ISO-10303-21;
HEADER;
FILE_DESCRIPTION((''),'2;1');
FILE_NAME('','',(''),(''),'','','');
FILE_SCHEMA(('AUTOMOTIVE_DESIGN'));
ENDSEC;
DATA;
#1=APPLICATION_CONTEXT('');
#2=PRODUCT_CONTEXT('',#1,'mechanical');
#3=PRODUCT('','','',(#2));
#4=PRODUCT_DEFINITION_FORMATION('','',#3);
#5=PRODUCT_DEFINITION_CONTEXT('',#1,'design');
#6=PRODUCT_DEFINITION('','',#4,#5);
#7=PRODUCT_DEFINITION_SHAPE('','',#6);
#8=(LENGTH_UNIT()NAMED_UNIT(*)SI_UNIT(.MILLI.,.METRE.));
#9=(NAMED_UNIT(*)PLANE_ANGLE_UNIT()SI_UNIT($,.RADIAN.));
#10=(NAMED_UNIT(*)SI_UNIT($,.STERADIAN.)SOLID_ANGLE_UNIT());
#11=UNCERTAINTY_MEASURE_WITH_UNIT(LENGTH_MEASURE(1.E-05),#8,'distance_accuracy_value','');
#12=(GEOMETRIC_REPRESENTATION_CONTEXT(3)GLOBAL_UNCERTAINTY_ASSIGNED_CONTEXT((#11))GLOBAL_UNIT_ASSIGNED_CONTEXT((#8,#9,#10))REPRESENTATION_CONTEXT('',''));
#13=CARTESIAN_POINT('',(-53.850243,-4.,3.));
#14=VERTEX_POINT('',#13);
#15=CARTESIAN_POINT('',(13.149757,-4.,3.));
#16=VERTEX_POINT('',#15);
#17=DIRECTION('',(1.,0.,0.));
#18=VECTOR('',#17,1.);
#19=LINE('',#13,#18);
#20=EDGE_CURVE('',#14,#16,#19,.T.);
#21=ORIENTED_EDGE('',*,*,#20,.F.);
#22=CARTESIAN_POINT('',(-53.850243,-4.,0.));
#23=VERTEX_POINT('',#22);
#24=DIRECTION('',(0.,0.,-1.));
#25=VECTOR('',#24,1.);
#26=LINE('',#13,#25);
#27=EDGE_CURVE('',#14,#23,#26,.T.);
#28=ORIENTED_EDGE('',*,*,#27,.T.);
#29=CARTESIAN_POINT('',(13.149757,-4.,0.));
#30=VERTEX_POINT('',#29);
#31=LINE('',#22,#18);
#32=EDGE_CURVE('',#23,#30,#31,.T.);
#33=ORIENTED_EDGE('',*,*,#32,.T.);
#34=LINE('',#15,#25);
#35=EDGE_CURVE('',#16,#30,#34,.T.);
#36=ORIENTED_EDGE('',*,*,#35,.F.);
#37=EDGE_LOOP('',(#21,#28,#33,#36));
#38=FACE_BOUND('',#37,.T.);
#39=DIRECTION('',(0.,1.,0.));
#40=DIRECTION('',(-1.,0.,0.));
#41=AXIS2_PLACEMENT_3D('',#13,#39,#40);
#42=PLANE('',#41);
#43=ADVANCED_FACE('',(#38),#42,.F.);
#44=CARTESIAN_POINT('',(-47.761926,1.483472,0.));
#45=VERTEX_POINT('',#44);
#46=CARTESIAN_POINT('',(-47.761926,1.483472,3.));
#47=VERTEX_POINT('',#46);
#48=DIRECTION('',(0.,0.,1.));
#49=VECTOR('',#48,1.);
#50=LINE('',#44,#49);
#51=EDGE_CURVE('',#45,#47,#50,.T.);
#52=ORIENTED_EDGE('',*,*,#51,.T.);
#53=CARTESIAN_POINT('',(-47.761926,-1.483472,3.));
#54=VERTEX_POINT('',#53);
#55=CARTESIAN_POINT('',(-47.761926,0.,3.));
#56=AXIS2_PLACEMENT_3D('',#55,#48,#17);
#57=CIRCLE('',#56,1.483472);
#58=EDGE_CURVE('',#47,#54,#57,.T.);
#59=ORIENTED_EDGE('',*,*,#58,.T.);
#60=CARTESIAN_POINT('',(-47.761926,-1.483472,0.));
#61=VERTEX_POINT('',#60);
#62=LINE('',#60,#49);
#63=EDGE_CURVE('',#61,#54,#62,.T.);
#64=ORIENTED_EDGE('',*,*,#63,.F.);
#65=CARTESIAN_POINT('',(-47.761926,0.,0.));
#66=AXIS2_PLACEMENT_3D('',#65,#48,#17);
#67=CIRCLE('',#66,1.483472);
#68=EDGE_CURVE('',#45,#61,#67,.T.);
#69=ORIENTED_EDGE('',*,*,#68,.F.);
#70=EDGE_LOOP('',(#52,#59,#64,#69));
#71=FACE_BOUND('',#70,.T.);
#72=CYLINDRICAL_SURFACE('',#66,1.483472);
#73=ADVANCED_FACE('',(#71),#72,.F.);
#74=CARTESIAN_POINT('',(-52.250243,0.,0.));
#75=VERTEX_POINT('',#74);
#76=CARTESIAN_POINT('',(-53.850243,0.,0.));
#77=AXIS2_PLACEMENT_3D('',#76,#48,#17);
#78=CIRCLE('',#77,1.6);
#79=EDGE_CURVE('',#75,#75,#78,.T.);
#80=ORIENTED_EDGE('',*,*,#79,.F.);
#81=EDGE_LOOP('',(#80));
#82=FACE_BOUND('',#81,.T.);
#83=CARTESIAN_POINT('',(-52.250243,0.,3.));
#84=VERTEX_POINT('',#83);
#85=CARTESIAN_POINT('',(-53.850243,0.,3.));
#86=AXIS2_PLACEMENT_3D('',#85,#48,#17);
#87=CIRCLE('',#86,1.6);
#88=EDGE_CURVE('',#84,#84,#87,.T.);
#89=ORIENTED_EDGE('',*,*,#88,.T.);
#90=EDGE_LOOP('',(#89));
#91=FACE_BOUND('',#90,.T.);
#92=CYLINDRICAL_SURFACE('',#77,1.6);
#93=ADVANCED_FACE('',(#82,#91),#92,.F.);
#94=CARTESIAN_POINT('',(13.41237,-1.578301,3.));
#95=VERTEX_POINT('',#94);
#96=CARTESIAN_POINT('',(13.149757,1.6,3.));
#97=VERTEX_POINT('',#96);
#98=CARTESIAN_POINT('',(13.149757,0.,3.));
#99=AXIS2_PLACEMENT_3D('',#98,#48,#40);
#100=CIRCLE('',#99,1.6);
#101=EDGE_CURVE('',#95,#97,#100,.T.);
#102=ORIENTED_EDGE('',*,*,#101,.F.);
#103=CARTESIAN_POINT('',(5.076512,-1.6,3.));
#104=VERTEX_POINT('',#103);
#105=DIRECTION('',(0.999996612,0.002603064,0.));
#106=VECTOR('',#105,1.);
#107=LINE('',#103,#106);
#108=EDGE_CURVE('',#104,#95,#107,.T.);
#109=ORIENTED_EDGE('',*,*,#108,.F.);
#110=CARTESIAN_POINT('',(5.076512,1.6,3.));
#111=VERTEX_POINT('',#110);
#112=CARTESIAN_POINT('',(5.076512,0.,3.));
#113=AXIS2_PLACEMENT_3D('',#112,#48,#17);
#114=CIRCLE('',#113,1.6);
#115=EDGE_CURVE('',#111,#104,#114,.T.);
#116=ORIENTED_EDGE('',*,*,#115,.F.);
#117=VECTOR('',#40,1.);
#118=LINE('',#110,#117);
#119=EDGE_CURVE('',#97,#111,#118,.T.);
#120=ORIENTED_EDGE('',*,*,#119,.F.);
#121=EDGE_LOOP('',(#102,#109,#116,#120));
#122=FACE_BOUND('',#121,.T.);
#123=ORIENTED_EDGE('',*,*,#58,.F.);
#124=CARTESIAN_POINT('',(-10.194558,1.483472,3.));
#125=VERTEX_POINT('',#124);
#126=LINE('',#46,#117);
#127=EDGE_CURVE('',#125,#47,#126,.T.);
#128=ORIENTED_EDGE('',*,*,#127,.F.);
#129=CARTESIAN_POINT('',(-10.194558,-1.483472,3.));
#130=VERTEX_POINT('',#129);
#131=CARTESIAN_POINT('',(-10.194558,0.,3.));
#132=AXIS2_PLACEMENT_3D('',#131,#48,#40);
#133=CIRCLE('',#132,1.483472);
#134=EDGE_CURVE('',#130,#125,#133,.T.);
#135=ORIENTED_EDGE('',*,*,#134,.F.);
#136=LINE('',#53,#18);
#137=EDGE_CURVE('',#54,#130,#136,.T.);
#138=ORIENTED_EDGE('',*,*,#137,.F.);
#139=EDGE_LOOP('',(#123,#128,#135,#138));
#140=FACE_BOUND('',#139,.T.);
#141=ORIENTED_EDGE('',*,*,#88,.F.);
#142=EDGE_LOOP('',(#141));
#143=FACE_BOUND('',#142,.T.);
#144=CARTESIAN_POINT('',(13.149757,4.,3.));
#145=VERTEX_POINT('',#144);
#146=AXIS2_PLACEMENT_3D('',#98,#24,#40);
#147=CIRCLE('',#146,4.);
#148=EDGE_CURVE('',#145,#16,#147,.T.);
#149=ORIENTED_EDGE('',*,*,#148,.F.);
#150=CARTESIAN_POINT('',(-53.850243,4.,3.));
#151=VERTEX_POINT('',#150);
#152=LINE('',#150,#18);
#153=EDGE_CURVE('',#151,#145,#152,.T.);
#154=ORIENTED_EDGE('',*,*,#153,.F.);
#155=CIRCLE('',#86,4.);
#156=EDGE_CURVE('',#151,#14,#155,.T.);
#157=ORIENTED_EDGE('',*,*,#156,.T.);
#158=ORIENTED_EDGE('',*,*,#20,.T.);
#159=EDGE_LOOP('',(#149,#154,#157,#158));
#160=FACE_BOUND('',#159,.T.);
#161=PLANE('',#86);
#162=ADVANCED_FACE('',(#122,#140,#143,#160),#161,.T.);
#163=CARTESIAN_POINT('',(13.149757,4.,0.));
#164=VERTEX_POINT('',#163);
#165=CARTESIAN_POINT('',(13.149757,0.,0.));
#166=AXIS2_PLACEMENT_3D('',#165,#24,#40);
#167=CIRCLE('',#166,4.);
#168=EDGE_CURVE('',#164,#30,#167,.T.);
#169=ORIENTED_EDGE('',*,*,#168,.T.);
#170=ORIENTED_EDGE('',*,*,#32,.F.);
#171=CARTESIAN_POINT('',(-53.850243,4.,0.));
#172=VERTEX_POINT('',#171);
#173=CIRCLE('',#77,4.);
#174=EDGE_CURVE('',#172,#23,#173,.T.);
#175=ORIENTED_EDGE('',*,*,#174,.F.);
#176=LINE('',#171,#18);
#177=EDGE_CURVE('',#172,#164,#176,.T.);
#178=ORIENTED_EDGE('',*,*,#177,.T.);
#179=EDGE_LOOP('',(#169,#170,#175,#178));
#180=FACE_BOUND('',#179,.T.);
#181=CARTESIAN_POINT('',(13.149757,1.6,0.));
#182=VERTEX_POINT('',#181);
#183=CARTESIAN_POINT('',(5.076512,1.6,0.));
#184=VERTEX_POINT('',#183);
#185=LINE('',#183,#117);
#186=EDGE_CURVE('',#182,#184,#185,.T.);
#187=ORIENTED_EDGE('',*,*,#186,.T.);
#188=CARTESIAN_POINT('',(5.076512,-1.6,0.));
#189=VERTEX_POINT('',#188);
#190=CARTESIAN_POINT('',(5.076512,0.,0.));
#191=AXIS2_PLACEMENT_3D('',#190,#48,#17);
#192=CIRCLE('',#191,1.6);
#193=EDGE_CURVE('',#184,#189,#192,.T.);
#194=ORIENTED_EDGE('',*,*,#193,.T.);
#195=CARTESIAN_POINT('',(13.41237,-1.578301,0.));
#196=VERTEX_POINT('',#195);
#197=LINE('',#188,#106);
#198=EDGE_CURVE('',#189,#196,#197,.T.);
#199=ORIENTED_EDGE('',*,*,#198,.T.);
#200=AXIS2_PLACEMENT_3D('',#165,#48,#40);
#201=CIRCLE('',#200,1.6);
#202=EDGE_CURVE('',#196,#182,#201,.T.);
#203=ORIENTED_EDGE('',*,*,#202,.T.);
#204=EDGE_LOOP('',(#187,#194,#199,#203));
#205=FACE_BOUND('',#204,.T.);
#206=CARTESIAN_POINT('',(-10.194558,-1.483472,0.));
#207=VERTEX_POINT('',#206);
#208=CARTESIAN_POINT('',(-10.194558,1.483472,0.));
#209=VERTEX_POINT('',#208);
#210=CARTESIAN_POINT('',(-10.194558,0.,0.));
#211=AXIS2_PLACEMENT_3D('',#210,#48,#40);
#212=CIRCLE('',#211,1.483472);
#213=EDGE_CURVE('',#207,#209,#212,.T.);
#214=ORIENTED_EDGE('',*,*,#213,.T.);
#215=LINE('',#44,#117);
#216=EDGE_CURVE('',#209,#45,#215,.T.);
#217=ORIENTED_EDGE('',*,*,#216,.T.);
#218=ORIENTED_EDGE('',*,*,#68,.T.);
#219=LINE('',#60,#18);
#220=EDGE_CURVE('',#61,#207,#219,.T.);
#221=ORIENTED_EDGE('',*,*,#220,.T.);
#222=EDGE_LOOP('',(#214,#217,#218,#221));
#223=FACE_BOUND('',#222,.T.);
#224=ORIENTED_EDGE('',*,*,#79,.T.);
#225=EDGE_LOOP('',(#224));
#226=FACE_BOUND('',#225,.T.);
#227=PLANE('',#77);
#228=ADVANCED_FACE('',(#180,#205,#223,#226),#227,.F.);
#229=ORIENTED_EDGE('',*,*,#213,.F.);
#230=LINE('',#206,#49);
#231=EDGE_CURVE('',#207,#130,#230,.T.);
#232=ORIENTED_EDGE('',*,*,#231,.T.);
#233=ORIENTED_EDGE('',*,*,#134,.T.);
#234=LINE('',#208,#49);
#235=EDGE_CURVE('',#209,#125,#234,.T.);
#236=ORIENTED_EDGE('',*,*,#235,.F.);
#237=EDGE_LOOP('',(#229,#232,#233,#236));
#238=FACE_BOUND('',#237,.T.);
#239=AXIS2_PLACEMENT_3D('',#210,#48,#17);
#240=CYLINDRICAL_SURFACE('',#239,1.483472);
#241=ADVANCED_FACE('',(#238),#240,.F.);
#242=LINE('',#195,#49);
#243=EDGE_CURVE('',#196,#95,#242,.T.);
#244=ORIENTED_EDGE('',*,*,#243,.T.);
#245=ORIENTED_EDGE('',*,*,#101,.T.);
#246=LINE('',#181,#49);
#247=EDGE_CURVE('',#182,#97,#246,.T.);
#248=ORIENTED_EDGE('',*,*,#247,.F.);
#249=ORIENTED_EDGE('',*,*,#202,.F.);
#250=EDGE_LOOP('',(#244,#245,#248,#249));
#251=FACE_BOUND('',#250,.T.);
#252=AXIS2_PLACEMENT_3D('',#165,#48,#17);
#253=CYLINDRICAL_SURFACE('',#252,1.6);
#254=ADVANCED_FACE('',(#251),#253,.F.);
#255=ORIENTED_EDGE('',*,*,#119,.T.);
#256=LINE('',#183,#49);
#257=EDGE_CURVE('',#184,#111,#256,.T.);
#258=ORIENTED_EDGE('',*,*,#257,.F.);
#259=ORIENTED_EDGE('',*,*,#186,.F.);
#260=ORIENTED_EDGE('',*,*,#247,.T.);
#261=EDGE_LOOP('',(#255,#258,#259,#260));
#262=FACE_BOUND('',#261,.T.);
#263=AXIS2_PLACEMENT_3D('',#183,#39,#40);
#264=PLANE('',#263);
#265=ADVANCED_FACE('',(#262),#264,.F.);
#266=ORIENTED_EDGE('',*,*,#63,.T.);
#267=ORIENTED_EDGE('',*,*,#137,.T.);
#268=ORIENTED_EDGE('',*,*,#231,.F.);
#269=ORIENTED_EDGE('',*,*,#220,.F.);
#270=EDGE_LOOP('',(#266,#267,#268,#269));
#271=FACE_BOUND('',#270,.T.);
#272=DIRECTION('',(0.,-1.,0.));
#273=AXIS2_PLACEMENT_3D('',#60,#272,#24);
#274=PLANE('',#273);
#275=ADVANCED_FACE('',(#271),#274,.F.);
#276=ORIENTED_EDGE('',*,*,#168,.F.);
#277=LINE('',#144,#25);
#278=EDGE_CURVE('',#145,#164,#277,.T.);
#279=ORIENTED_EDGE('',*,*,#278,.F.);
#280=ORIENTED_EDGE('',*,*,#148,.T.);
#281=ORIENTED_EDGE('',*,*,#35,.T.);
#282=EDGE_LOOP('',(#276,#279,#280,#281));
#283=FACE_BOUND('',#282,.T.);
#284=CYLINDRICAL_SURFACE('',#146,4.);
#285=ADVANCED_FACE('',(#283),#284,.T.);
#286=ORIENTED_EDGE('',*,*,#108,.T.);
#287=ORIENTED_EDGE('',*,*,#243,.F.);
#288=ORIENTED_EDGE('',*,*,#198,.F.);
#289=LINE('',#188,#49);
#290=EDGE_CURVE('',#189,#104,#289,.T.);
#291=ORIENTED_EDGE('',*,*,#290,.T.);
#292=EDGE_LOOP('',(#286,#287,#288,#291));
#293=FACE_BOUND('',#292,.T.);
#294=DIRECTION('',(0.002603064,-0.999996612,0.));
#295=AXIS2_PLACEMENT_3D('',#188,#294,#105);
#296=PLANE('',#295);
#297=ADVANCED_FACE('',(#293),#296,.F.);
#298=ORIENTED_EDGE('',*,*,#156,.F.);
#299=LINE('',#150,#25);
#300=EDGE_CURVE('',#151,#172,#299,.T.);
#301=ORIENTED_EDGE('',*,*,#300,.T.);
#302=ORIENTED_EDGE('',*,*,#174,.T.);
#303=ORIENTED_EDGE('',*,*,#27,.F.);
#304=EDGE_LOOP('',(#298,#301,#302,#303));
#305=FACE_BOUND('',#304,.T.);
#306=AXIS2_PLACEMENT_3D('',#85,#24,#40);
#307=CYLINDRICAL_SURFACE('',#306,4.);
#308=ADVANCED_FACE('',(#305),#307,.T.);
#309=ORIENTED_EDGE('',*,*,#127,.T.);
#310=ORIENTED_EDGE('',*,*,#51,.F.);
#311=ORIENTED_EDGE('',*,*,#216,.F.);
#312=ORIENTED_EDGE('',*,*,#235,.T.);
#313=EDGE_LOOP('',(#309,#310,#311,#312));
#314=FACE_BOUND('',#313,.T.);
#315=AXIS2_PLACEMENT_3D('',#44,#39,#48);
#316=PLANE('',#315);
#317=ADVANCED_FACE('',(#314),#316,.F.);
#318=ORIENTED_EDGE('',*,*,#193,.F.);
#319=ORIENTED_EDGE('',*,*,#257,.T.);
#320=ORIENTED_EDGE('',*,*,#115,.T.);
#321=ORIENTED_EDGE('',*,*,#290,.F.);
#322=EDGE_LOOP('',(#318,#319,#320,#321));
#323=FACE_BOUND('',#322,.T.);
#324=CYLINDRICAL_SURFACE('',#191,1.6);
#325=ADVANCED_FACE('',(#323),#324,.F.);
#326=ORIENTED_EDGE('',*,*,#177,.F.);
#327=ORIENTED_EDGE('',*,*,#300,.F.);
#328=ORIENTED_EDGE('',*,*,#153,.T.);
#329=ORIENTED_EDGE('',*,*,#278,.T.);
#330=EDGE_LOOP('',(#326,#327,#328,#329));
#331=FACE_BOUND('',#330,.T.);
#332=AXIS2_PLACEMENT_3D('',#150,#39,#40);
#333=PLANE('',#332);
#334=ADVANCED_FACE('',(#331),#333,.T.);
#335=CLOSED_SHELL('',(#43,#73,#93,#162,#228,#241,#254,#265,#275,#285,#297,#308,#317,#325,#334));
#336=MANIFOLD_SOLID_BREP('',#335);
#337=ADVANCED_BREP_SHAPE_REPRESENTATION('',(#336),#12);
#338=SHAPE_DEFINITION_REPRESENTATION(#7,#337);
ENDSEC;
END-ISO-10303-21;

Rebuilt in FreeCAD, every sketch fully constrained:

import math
import FreeCAD as App
import Part
import Sketcher
from FreeCAD import Vector

doc = App.newDocument("Part")
body = doc.addObject("PartDesign::Body", "Body")

# Sketch on XY plane
sketch1 = body.newObject("Sketcher::SketchObject", "Sketch")
sketch1.AttachmentSupport = (doc.getObject("XY_Plane"), [""])
sketch1.MapMode = "FlatFace"
sketch1.addGeometry(Part.LineSegment(Vector(13.149757, 4, 0), Vector(-53.850243, 4, 0)), False)
sketch1.addGeometry(Part.ArcOfCircle(Part.Circle(Vector(-53.850243, 0, 0), Vector(0, 0, 1), 4), math.radians(90), math.radians(270)), False)
sketch1.addGeometry(Part.LineSegment(Vector(-53.850243, -4, 0), Vector(13.149757, -4, 0)), False)
sketch1.addGeometry(Part.ArcOfCircle(Part.Circle(Vector(13.149757, 0, 0), Vector(0, 0, 1), 4), math.radians(-90), math.radians(90)), False)
sketch1.addConstraint(Sketcher.Constraint("Tangent", 0, 2, 1, 1))
sketch1.addConstraint(Sketcher.Constraint("Tangent", 1, 2, 2, 1))
sketch1.addConstraint(Sketcher.Constraint("Tangent", 2, 2, 3, 1))
sketch1.addConstraint(Sketcher.Constraint("Tangent", 3, 2, 0, 1))
sketch1.addConstraint(Sketcher.Constraint("Horizontal", 0))
sketch1.addConstraint(Sketcher.Constraint("Horizontal", 2))
sketch1.addConstraint(Sketcher.Constraint("PointOnObject", 1, 3, -1))
sketch1.addConstraint(Sketcher.Constraint("Radius", 1, 4.0))
sketch1.addConstraint(Sketcher.Constraint("DistanceX", 0, 2, 0, 1, 67.0))
sketch1.addConstraint(Sketcher.Constraint("DistanceX", 1, 3, -1, 1, 53.850243))
pad1 = body.newObject("PartDesign::Pad", "Pad")
pad1.Profile = sketch1
pad1.Length = 3

# Sketch on XY plane
sketch2 = body.newObject("Sketcher::SketchObject", "Sketch001")
sketch2.AttachmentSupport = (doc.getObject("XY_Plane"), [""])
sketch2.MapMode = "FlatFace"
sketch2.AttachmentOffset = App.Placement(Vector(0, 0, 3), App.Rotation())
sketch2.addGeometry(Part.Circle(Vector(-53.850243, 0, 0), Vector(0, 0, 1), 1.6), False)
sketch2.addGeometry(Part.LineSegment(Vector(-10.194558, 1.483472, 0), Vector(-47.761926, 1.483472, 0)), False)
sketch2.addGeometry(Part.ArcOfCircle(Part.Circle(Vector(-47.761926, 0, 0), Vector(0, 0, 1), 1.483472), math.radians(90), math.radians(270)), False)
sketch2.addGeometry(Part.LineSegment(Vector(-47.761926, -1.483472, 0), Vector(-10.194558, -1.483472, 0)), False)
sketch2.addGeometry(Part.ArcOfCircle(Part.Circle(Vector(-10.194558, 0, 0), Vector(0, 0, 1), 1.483472), math.radians(-90), math.radians(90)), False)
sketch2.addGeometry(Part.LineSegment(Vector(13.149757, 1.6, 0), Vector(5.076512, 1.6, 0)), False)
sketch2.addGeometry(Part.ArcOfCircle(Part.Circle(Vector(5.076512, 0, 0), Vector(0, 0, 1), 1.6), math.radians(90), math.radians(270)), False)
sketch2.addGeometry(Part.LineSegment(Vector(5.076512, -1.6, 0), Vector(13.41237, -1.578301, 0)), False)
sketch2.addGeometry(Part.ArcOfCircle(Part.Circle(Vector(13.149757, 0, 0), Vector(0, 0, 1), 1.6), math.radians(-80.55313), math.radians(90)), False)
sketch2.addConstraint(Sketcher.Constraint("Tangent", 1, 2, 2, 1))
sketch2.addConstraint(Sketcher.Constraint("Tangent", 2, 2, 3, 1))
sketch2.addConstraint(Sketcher.Constraint("Tangent", 3, 2, 4, 1))
sketch2.addConstraint(Sketcher.Constraint("Tangent", 4, 2, 1, 1))
sketch2.addConstraint(Sketcher.Constraint("Tangent", 5, 2, 6, 1))
sketch2.addConstraint(Sketcher.Constraint("Coincident", 6, 2, 7, 1))
sketch2.addConstraint(Sketcher.Constraint("Coincident", 7, 2, 8, 1))
sketch2.addConstraint(Sketcher.Constraint("Tangent", 8, 2, 5, 1))
sketch2.addConstraint(Sketcher.Constraint("Horizontal", 1))
sketch2.addConstraint(Sketcher.Constraint("Horizontal", 3))
sketch2.addConstraint(Sketcher.Constraint("Horizontal", 5))
sketch2.addConstraint(Sketcher.Constraint("Equal", 0, 6))
sketch2.addConstraint(Sketcher.Constraint("Equal", 6, 8))
sketch2.addConstraint(Sketcher.Constraint("Symmetric", 5, 2, 6, 2, -1))
sketch2.addConstraint(Sketcher.Constraint("PointOnObject", 0, 3, -1))
sketch2.addConstraint(Sketcher.Constraint("PointOnObject", 2, 3, -1))
sketch2.addConstraint(Sketcher.Constraint("Diameter", 0, 3.2))
sketch2.addConstraint(Sketcher.Constraint("DistanceX", 0, 3, 8, 3, 67.0))
sketch2.addConstraint(Sketcher.Constraint("Radius", 2, 1.483472))
sketch2.addConstraint(Sketcher.Constraint("DistanceX", 1, 2, 1, 1, 37.567368))
sketch2.addConstraint(Sketcher.Constraint("DistanceY", 7, 2, -1, 1, 1.578301))
sketch2.addConstraint(Sketcher.Constraint("DistanceX", 5, 2, 5, 1, 8.073245))
sketch2.addConstraint(Sketcher.Constraint("DistanceX", 4, 3, -1, 1, 10.194558))
sketch2.addConstraint(Sketcher.Constraint("DistanceX", -1, 1, 7, 2, 13.41237))
pocket1 = body.newObject("PartDesign::Pocket", "Pocket")
pocket1.Profile = sketch2
pocket1.Length = 3

doc.recompute()
